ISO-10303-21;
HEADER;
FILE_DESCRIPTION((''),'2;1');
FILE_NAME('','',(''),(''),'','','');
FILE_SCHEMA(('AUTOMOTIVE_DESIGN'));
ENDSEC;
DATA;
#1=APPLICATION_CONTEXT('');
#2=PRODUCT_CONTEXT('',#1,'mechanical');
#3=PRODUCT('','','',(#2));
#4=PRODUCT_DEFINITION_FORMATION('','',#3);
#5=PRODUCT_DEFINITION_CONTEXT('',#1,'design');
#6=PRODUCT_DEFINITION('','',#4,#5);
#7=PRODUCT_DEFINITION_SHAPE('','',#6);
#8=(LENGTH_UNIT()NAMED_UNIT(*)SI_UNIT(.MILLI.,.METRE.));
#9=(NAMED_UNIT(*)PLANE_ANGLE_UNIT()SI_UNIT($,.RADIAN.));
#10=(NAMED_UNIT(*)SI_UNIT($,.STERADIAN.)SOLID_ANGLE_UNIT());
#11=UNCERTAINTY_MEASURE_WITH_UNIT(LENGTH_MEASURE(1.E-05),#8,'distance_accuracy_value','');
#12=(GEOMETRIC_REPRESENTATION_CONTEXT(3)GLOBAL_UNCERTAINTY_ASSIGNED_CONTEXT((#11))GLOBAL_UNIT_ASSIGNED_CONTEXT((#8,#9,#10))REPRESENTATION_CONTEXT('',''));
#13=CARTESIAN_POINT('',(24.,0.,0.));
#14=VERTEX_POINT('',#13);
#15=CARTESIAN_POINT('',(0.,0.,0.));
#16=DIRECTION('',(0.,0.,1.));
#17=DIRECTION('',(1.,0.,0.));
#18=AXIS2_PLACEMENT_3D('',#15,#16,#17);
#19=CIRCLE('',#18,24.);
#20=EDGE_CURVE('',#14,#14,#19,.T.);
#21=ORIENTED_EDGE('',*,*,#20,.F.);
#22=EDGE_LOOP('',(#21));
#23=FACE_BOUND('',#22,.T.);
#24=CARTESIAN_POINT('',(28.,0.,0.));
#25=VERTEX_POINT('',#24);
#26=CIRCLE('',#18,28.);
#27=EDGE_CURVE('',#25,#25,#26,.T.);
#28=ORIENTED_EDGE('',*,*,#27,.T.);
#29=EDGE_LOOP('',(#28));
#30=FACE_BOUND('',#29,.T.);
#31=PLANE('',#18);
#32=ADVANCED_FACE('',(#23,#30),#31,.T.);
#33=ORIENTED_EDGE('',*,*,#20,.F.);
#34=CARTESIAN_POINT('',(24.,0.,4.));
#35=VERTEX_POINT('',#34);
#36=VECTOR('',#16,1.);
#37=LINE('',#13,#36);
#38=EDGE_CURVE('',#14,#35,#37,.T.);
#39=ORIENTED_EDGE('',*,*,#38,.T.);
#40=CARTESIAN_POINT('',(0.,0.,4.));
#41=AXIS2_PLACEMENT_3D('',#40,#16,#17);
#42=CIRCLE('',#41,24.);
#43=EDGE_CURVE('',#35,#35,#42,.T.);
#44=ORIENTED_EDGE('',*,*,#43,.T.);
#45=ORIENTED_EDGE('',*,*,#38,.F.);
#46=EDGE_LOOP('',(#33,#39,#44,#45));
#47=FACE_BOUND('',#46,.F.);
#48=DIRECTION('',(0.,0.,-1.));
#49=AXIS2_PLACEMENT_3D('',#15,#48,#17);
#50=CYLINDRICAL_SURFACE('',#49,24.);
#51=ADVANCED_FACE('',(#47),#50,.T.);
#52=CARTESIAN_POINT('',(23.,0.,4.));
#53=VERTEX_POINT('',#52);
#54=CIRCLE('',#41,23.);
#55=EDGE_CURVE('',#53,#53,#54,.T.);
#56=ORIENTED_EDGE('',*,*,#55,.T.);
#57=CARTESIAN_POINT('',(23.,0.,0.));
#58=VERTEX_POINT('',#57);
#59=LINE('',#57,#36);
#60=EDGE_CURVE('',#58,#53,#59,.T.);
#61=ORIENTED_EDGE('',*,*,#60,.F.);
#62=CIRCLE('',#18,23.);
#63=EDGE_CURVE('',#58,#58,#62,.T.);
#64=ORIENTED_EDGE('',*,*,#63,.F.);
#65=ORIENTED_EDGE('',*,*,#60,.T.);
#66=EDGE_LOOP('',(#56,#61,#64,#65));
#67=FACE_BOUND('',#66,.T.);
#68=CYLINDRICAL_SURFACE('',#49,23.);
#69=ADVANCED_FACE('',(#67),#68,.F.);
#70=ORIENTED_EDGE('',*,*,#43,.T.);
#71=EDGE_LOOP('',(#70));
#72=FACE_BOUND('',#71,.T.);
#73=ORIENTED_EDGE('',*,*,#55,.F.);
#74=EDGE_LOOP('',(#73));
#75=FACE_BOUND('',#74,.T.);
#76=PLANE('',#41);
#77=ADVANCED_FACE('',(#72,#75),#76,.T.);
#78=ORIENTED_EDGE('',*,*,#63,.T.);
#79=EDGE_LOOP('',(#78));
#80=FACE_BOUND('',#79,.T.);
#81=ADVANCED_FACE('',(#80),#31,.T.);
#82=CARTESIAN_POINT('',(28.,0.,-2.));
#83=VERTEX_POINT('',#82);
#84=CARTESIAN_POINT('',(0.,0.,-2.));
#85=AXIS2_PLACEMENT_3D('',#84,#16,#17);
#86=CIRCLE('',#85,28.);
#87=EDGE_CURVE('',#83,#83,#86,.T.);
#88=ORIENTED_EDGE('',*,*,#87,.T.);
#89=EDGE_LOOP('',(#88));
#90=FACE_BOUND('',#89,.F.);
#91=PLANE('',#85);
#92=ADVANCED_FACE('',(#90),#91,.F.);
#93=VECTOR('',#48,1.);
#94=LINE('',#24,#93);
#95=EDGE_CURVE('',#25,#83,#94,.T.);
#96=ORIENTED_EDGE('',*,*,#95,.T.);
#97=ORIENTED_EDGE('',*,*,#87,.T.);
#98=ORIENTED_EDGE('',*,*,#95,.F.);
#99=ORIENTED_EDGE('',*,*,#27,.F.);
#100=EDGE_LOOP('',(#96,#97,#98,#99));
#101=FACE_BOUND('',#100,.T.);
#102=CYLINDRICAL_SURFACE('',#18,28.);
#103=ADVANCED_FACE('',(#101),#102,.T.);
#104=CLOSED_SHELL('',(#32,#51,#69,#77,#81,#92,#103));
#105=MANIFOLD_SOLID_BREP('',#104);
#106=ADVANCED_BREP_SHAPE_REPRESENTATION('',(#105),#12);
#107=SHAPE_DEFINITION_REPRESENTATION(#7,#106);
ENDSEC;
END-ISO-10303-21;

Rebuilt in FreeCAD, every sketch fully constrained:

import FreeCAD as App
import Part
import Sketcher
from FreeCAD import Vector

doc = App.newDocument("Part")
body = doc.addObject("PartDesign::Body", "Body")

# Sketch on XY plane
sketch1 = body.newObject("Sketcher::SketchObject", "Sketch")
sketch1.AttachmentSupport = (doc.getObject("XY_Plane"), [""])
sketch1.MapMode = "FlatFace"
sketch1.addGeometry(Part.Circle(Vector(0, 0, 0), Vector(0, 0, 1), 28), False)
sketch1.addConstraint(Sketcher.Constraint("Coincident", 0, 3, -1, 1))
sketch1.addConstraint(Sketcher.Constraint("Diameter", 0, 56.0))
pad1 = body.newObject("PartDesign::Pad", "Pad")
pad1.Profile = sketch1
pad1.Length = 2
pad1.Reversed = True

# Sketch on XY plane
sketch2 = body.newObject("Sketcher::SketchObject", "Sketch001")
sketch2.AttachmentSupport = (doc.getObject("XY_Plane"), [""])
sketch2.MapMode = "FlatFace"
sketch2.addGeometry(Part.Circle(Vector(0, 0, 0), Vector(0, 0, 1), 24), False)
sketch2.addGeometry(Part.Circle(Vector(0, 0, 0), Vector(0, 0, 1), 23), False)
sketch2.addConstraint(Sketcher.Constraint("Coincident", 0, 3, -1, 1))
sketch2.addConstraint(Sketcher.Constraint("Coincident", 1, 3, -1, 1))
sketch2.addConstraint(Sketcher.Constraint("Diameter", 0, 48.0))
sketch2.addConstraint(Sketcher.Constraint("Diameter", 1, 46.0))
pad2 = body.newObject("PartDesign::Pad", "Pad001")
pad2.Profile = sketch2
pad2.Length = 4

doc.recompute()
